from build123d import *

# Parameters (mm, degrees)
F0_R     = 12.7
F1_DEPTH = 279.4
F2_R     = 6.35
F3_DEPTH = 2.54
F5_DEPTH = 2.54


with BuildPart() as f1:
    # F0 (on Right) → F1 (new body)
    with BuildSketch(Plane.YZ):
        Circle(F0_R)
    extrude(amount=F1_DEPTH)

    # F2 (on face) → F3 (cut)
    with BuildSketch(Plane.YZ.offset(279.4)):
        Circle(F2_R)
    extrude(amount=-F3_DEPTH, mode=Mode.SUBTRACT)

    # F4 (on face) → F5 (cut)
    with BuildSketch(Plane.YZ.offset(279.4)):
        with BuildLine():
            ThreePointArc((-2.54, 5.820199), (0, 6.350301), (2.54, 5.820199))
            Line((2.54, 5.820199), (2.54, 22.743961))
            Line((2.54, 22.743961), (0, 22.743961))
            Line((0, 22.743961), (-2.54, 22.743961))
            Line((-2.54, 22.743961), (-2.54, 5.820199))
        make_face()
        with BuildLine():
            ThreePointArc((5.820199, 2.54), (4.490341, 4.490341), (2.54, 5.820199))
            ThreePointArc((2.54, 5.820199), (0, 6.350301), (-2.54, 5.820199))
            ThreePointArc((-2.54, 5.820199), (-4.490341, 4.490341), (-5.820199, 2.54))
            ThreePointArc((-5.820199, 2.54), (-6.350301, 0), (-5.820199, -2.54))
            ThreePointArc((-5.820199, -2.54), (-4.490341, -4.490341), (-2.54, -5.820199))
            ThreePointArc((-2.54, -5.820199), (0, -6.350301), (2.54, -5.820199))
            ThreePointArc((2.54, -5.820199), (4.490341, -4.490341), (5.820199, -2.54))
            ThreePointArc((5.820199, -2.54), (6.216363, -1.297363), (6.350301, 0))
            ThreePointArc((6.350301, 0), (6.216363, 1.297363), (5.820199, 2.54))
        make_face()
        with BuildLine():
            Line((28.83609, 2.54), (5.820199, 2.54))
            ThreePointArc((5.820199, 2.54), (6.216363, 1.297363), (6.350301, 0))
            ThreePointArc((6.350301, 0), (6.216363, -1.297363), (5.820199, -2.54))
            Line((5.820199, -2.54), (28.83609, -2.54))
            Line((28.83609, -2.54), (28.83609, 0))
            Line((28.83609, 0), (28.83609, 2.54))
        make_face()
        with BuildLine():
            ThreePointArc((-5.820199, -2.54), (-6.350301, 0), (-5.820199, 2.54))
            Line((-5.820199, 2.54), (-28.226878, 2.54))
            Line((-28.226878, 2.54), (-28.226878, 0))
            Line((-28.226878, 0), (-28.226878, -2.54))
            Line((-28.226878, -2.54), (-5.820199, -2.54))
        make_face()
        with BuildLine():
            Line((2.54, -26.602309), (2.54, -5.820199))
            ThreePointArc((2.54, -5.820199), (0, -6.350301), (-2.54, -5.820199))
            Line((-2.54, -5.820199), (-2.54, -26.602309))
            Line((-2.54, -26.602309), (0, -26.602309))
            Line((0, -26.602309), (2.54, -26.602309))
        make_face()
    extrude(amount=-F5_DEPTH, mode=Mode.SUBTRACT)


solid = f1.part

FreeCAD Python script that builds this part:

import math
import FreeCAD as App
import Part
import Sketcher
from FreeCAD import Vector
Q = App.Units.Quantity

doc = App.newDocument("Part")
params = doc.addObject("Spreadsheet::Sheet", "Params")
for row, (alias, value) in enumerate([
    ("sketch1_diameter", "1 in"),
    ("pad1_length", "11 in"),
    ("sketch2_diameter", "0.5 in"),
    ("pocket1_length", "0.1 in"),
    ("sketch3_width", "0.2 in"),
    ("pocket2_length", "0.1 in"),
], start=1):
    params.set(f"A{row}", alias)
    params.set(f"B{row}", "=" + value)
    params.setAlias(f"B{row}", alias)

body = doc.addObject("PartDesign::Body", "Body")

sketch1 = body.newObject("Sketcher::SketchObject", "Sketch")
sketch1.AttachmentSupport = (doc.getObject("YZ_Plane"), [""])
sketch1.MapMode = "FlatFace"
sketch1.addGeometry(Part.Circle(Vector(0, 0, 0), Vector(0, 0, 1), 13), False)
sketch1.addConstraint([
    Sketcher.Constraint("Coincident", 0, 3, -1, 1),
    Sketcher.Constraint("Diameter", 0, Q("1 in")),
])
sketch1.setExpression("Constraints[1]", "Params.sketch1_diameter")
pad1 = body.newObject("PartDesign::Pad", "Pad")
pad1.Profile = sketch1
pad1.setExpression("Length", "Params.pad1_length")

sketch2 = body.newObject("Sketcher::SketchObject", "Sketch001")
sketch2.AttachmentSupport = (doc.getObject("YZ_Plane"), [""])
sketch2.MapMode = "FlatFace"
sketch2.AttachmentOffset = App.Placement(Vector(0, 0, 11 * 25.4), App.Rotation())
sketch2.addGeometry(Part.Circle(Vector(0, 0, 0), Vector(0, 0, 1), 6), False)
sketch2.addConstraint([
    Sketcher.Constraint("Coincident", 0, 3, -1, 1),
    Sketcher.Constraint("Diameter", 0, Q("0.5 in")),
])
sketch2.setExpression("Constraints[1]", "Params.sketch2_diameter")
pocket1 = body.newObject("PartDesign::Pocket", "Pocket")
pocket1.Profile = sketch2
pocket1.setExpression("Length", "Params.pocket1_length")

sketch3 = body.newObject("Sketcher::SketchObject", "Sketch002")
sketch3.AttachmentSupport = (doc.getObject("YZ_Plane"), [""])
sketch3.MapMode = "FlatFace"
sketch3.AttachmentOffset = App.Placement(Vector(0, 0, 11 * 25.4), App.Rotation())
sketch3.addGeometry([
    Part.LineSegment(Vector(2.5, 5.8, 0), Vector(2.5, 22.7, 0)),
    Part.LineSegment(Vector(2.5, 22.7, 0), Vector(-2.5, 22.7, 0)),
    Part.LineSegment(Vector(-2.5, 22.7, 0), Vector(-2.5, 5.8, 0)),
    Part.ArcOfCircle(Part.Circle(Vector(0, 0, 0), Vector(0, 0, 1), 6.4), math.radians(114), math.radians(156)),
    Part.LineSegment(Vector(-5.8, 2.5, 0), Vector(-28.2, 2.5, 0)),
    Part.LineSegment(Vector(-28.2, 2.5, 0), Vector(-28.2, -2.5, 0)),
    Part.LineSegment(Vector(-28.2, -2.5, 0), Vector(-5.8, -2.5, 0)),
    Part.ArcOfCircle(Part.Circle(Vector(0, 0, 0), Vector(0, 0, 1), 6.4), math.radians(-156), math.radians(-114)),
    Part.LineSegment(Vector(-2.5, -5.8, 0), Vector(-2.5, -26.6, 0)),
    Part.LineSegment(Vector(-2.5, -26.6, 0), Vector(2.5, -26.6, 0)),
    Part.LineSegment(Vector(2.5, -26.6, 0), Vector(2.5, -5.8, 0)),
    Part.ArcOfCircle(Part.Circle(Vector(0, 0, 0), Vector(0, 0, 1), 6.4), math.radians(-66), math.radians(-24)),
    Part.LineSegment(Vector(5.8, -2.5, 0), Vector(28.8, -2.5, 0)),
    Part.LineSegment(Vector(28.8, -2.5, 0), Vector(28.8, 2.5, 0)),
    Part.LineSegment(Vector(28.8, 2.5, 0), Vector(5.8, 2.5, 0)),
    Part.ArcOfCircle(Part.Circle(Vector(0, 0, 0), Vector(0, 0, 1), 6.4), math.radians(24), math.radians(66)),
], False)
sketch3.addConstraint([
    Sketcher.Constraint("Coincident", 0, 2, 1, 1),
    Sketcher.Constraint("Coincident", 1, 2, 2, 1),
    Sketcher.Constraint("Coincident", 2, 2, 3, 1),
    Sketcher.Constraint("Coincident", 3, 2, 4, 1),
    Sketcher.Constraint("Coincident", 4, 2, 5, 1),
    Sketcher.Constraint("Coincident", 5, 2, 6, 1),
    Sketcher.Constraint("Coincident", 6, 2, 7, 1),
    Sketcher.Constraint("Coincident", 7, 2, 8, 1),
    Sketcher.Constraint("Coincident", 8, 2, 9, 1),
    Sketcher.Constraint("Coincident", 9, 2, 10, 1),
    Sketcher.Constraint("Coincident", 10, 2, 11, 1),
    Sketcher.Constraint("Coincident", 11, 2, 12, 1),
    Sketcher.Constraint("Coincident", 12, 2, 13, 1),
    Sketcher.Constraint("Coincident", 13, 2, 14, 1),
    Sketcher.Constraint("Coincident", 14, 2, 15, 1),
    Sketcher.Constraint("Coincident", 15, 2, 0, 1),
    Sketcher.Constraint("Vertical", 0),
    Sketcher.Constraint("Horizontal", 1),
    Sketcher.Constraint("Vertical", 2),
    Sketcher.Constraint("Horizontal", 4),
    Sketcher.Constraint("Vertical", 5),
    Sketcher.Constraint("Horizontal", 6),
    Sketcher.Constraint("Vertical", 8),
    Sketcher.Constraint("Horizontal", 9),
    Sketcher.Constraint("Vertical", 10),
    Sketcher.Constraint("Horizontal", 12),
    Sketcher.Constraint("Vertical", 13),
    Sketcher.Constraint("Horizontal", 14),
    Sketcher.Constraint("Coincident", 3, 3, -1, 1),
    Sketcher.Constraint("Coincident", 7, 3, -1, 1),
    Sketcher.Constraint("Coincident", 11, 3, -1, 1),
    Sketcher.Constraint("Coincident", 15, 3, -1, 1),
    Sketcher.Constraint("Equal", 3, 7),
    Sketcher.Constraint("Equal", 7, 11),
    Sketcher.Constraint("Equal", 11, 15),
    Sketcher.Constraint("Horizontal", 7, 2, 10, 2),
    Sketcher.Constraint("Horizontal", 6, 2, 11, 2),
    Sketcher.Constraint("Horizontal", 4, 2, 13, 2),
    Sketcher.Constraint("Horizontal", 2, 2, 15, 2),
    Sketcher.Constraint("Vertical", 3, 2, 6, 2),
    Sketcher.Constraint("Vertical", 2, 2, 7, 2),
    Sketcher.Constraint("Equal", 9, 5),
    Sketcher.Constraint("DistanceX", 1, 2, 1, 1, Q("0.2 in")),
    Sketcher.Constraint("Radius", 3, 6.350292),
    Sketcher.Constraint("DistanceX", 4, 2, 4, 1, 22.406679),
    Sketcher.Constraint("DistanceX", 12, 1, 12, 2, 23.015891),
    Sketcher.Constraint("DistanceY", 0, 1, 0, 2, 16.923762),
    Sketcher.Constraint("DistanceY", 8, 2, 8, 1, 20.78211),
])
sketch3.setExpression("Constraints[42]", "Params.sketch3_width")
pocket2 = body.newObject("PartDesign::Pocket", "Pocket001")
pocket2.Profile = sketch3
pocket2.setExpression("Length", "Params.pocket2_length")

doc.recompute()
